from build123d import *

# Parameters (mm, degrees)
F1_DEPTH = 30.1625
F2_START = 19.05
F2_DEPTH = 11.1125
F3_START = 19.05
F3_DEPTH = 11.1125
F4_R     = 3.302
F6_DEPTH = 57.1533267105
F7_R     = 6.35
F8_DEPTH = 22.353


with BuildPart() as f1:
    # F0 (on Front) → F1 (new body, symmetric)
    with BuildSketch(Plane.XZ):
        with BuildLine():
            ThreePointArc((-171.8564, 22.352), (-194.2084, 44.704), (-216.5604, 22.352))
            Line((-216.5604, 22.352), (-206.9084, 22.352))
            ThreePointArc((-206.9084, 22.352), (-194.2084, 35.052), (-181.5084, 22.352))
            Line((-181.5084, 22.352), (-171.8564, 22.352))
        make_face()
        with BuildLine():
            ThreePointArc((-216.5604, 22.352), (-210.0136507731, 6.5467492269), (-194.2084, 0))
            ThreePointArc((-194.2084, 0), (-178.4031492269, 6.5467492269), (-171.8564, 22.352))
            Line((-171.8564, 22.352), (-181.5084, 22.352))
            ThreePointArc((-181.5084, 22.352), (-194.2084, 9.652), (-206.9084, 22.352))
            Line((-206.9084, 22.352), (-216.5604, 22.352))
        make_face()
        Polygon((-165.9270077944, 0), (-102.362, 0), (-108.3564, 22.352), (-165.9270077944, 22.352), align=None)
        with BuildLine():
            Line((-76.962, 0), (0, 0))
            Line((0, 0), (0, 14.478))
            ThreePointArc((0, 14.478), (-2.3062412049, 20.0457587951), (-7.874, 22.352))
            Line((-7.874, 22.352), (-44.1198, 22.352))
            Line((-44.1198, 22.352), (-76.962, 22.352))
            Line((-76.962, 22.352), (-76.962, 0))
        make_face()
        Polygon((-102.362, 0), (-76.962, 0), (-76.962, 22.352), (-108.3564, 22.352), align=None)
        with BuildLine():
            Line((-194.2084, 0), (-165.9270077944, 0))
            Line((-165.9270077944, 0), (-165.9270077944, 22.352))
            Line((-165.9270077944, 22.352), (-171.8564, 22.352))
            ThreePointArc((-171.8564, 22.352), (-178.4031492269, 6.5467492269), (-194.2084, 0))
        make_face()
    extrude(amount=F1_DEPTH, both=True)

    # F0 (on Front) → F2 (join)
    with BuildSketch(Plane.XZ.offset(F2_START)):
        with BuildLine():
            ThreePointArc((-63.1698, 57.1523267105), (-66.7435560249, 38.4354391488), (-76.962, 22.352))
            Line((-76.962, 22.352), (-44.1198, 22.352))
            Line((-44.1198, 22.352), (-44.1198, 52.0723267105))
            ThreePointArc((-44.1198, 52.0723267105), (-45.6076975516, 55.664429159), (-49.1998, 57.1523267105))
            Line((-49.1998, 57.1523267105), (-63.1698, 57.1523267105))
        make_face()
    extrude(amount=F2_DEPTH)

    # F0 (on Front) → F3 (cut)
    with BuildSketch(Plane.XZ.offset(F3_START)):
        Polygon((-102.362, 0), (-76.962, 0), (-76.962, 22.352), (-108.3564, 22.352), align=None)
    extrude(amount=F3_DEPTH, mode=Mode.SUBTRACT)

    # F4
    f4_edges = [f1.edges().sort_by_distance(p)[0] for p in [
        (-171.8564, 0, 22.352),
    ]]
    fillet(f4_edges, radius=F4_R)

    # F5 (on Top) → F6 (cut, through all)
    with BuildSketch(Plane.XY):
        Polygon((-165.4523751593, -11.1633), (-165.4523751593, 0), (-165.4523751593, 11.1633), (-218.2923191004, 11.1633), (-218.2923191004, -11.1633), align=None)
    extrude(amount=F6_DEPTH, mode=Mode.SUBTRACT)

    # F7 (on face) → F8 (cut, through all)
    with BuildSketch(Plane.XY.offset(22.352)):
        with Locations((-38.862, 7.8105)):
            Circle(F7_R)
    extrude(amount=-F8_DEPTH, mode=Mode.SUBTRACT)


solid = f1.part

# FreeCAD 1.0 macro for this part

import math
import FreeCAD as App
import Part
import Sketcher
from FreeCAD import Vector
Q = App.Units.Quantity


def edges_at(feature, points):
    """Names of the edges that pass closest to the given points."""
    edges = feature.Shape.Edges
    near = lambda p: min(range(len(edges)), key=lambda i: edges[i].distToShape(Part.Vertex(*p))[0])
    return sorted({f"Edge{near(p) + 1}" for p in points})


def add_polygon(sketch, points):
    """Adds a closed chain of lines whose ends are joined by coincident constraints."""
    first, n = sketch.GeometryCount, len(points)
    for a, b in zip(points, points[1:] + points[:1]):
        sketch.addGeometry(Part.LineSegment(App.Vector(*a, 0), App.Vector(*b, 0)), False)
    for i in range(n):
        sketch.addConstraint(Sketcher.Constraint("Coincident", first + i, 2, first + (i + 1) % n, 1))

doc = App.newDocument("Part")
body = doc.addObject("PartDesign::Body", "Body")

# Sketch on XZ plane
sketch1 = body.newObject("Sketcher::SketchObject", "Sketch")
sketch1.AttachmentSupport = (doc.getObject("XZ_Plane"), [""])
sketch1.MapMode = "FlatFace"
sketch1.addGeometry([
    Part.ArcOfCircle(Part.Circle(Vector(-194, 22, 0), Vector(0, 0, 1), 22), math.radians(0), math.radians(180)),  # 0
    Part.ArcOfCircle(Part.Circle(Vector(-194, 22, 0), Vector(0, 0, 1), 22), math.radians(180), math.radians(270)),  # 1
    Part.LineSegment(Vector(-194, 0, 0), Vector(0, 0, 0)),  # 2
    Part.LineSegment(Vector(0, 0, 0), Vector(0, 14, 0)),  # 3
    Part.ArcOfCircle(Part.Circle(Vector(-8, 14, 0), Vector(0, 0, 1), 8), math.radians(0), math.radians(90)),  # 4
    Part.LineSegment(Vector(-8, 22, 0), Vector(-172, 22, 0)),  # 5
    Part.Circle(Vector(-194, 22, 0), Vector(0, 0, 1), 13),  # 6
], False)
sketch1.addConstraint([
    Sketcher.Constraint("Tangent", 0, 2, 1, 1),
    Sketcher.Constraint("Tangent", 1, 2, 2, 1),
    Sketcher.Constraint("Coincident", 2, 2, 3, 1),
    Sketcher.Constraint("Tangent", 3, 2, 4, 1),
    Sketcher.Constraint("Tangent", 4, 2, 5, 1),
    Sketcher.Constraint("Coincident", 5, 2, 0, 1),
    Sketcher.Constraint("Horizontal", 2),
    Sketcher.Constraint("Vertical", 3),
    Sketcher.Constraint("Horizontal", 5),
    Sketcher.Constraint("Coincident", 2, 2, -1, 1),
    Sketcher.Constraint("Coincident", 6, 3, 0, 3),
    Sketcher.Constraint("Equal", 0, 1),
    Sketcher.Constraint("Horizontal", 6, 3, 0, 2),
    Sketcher.Constraint("Horizontal", 0, 2, 4, 2),
    Sketcher.Constraint("Diameter", 6, Q("1 in")),
    Sketcher.Constraint("Radius", 0, Q("0.88 in")),
    Sketcher.Constraint("Radius", 4, Q("0.31 in")),
    Sketcher.Constraint("DistanceX", 2, 1, 2, 2, Q("7.646 in")),
])
pad1 = body.newObject("PartDesign::Pad", "Pad")
pad1.Profile = sketch1
pad1.Length = Q("2.375 in")
pad1.Midplane = True

# Sketch on XZ plane
sketch2 = body.newObject("Sketcher::SketchObject", "Sketch001")
sketch2.AttachmentSupport = (doc.getObject("XZ_Plane"), [""])
sketch2.MapMode = "FlatFace"
sketch2.AttachmentOffset = App.Placement(Vector(0, 0, 0.75 * 25.4), App.Rotation())
sketch2.addGeometry([
    Part.ArcOfCircle(Part.Circle(Vector(-114, 57, 0), Vector(0, 0, 1), 51), math.radians(-43), math.radians(0)),  # 0
    Part.LineSegment(Vector(-77, 22, 0), Vector(-44, 22, 0)),  # 1
    Part.LineSegment(Vector(-44, 22, 0), Vector(-44, 52, 0)),  # 2
    Part.ArcOfCircle(Part.Circle(Vector(-49, 52, 0), Vector(0, 0, 1), 5), math.radians(0), math.radians(90)),  # 3
    Part.LineSegment(Vector(-49, 57, 0), Vector(-63, 57, 0)),  # 4
], False)
sketch2.addConstraint([
    Sketcher.Constraint("Coincident", 0, 1, 1, 1),
    Sketcher.Constraint("Coincident", 1, 2, 2, 1),
    Sketcher.Constraint("Tangent", 2, 2, 3, 1),
    Sketcher.Constraint("Tangent", 3, 2, 4, 1),
    Sketcher.Constraint("Coincident", 4, 2, 0, 2),
    Sketcher.Constraint("Horizontal", 1),
    Sketcher.Constraint("Vertical", 2),
    Sketcher.Constraint("Horizontal", 4),
    Sketcher.Constraint("Horizontal", 0, 3, 3, 2),
    Sketcher.Constraint("Radius", 0, Q("2 in")),
    Sketcher.Constraint("Radius", 3, Q("0.2 in")),
    Sketcher.Constraint("DistanceX", 4, 2, 4, 1, Q("0.55 in")),
    Sketcher.Constraint("DistanceX", 1, 1, 1, 2, Q("1.293 in")),
    Sketcher.Constraint("DistanceX", 0, 1, -1, 1, Q("3.03 in")),
    Sketcher.Constraint("DistanceY", -1, 1, 0, 1, Q("0.88 in")),
])
pad2 = body.newObject("PartDesign::Pad", "Pad001")
pad2.Profile = sketch2
pad2.Length = Q("0.4375 in")

# Sketch on XZ plane
sketch3 = body.newObject("Sketcher::SketchObject", "Sketch002")
sketch3.AttachmentSupport = (doc.getObject("XZ_Plane"), [""])
sketch3.MapMode = "FlatFace"
sketch3.AttachmentOffset = App.Placement(Vector(0, 0, 0.75 * 25.4), App.Rotation())
add_polygon(sketch3, [(-102, 0), (-77, 0), (-77, 22), (-108, 22)])  # lines 0-3
sketch3.addConstraint([
    Sketcher.Constraint("Horizontal", 0),
    Sketcher.Constraint("Vertical", 1),
    Sketcher.Constraint("Horizontal", 2),
    Sketcher.Constraint("PointOnObject", 0, 2, -1),
    Sketcher.Constraint("DistanceX", 0, 1, 0, 2, Q("1 in")),
    Sketcher.Constraint("DistanceY", 1, 1, 1, 2, Q("0.88 in")),
    Sketcher.Constraint("DistanceX", 2, 2, 2, 1, Q("1.236 in")),
    Sketcher.Constraint("DistanceX", 0, 2, -1, 1, Q("3.03 in")),
])
pocket1 = body.newObject("PartDesign::Pocket", "Pocket")
pocket1.Profile = sketch3
pocket1.Length = Q("0.4375 in")
pocket1.Reversed = True
doc.recompute()

fillet = body.newObject("PartDesign::Fillet", "Fillet")
fillet.Base = (pocket1, edges_at(pocket1, [(-171.856, 0, 22.352)]))
fillet.Radius = Q("0.13 in")

# Sketch on XY plane
sketch4 = body.newObject("Sketcher::SketchObject", "Sketch003")
sketch4.AttachmentSupport = (doc.getObject("XY_Plane"), [""])
sketch4.MapMode = "FlatFace"
add_polygon(sketch4, [(-165, -11), (-165, 11), (-218, 11), (-218, -11)])  # lines 0-3
sketch4.addConstraint([
    Sketcher.Constraint("Vertical", 0),
    Sketcher.Constraint("Horizontal", 1),
    Sketcher.Constraint("Vertical", 2),
    Sketcher.Constraint("Horizontal", 3),
    Sketcher.Constraint("DistanceY", 0, 1, 0, 2, Q("0.879 in")),
    Sketcher.Constraint("DistanceY", -1, 1, 0, 2, Q("0.4395 in")),
    Sketcher.Constraint("DistanceX", 1, 2, 1, 1, Q("52.839944 mm")),
    Sketcher.Constraint("DistanceX", 1, 2, -1, 1, Q("218.292319 mm")),
])
pocket2 = body.newObject("PartDesign::Pocket", "Pocket001")
pocket2.Profile = sketch4
pocket2.Type = "ThroughAll"
pocket2.Reversed = True

# Sketch on XY plane
sketch5 = body.newObject("Sketcher::SketchObject", "Sketch004")
sketch5.AttachmentSupport = (doc.getObject("XY_Plane"), [""])
sketch5.MapMode = "FlatFace"
sketch5.AttachmentOffset = App.Placement(Vector(0, 0, 0.88 * 25.4), App.Rotation())
sketch5.addGeometry(Part.Circle(Vector(-39, 8, 0), Vector(0, 0, 1), 6), False)
sketch5.addConstraint([
    Sketcher.Constraint("Diameter", 0, Q("0.5 in")),
    Sketcher.Constraint("DistanceX", 0, 3, -1, 1, Q("1.53 in")),
    Sketcher.Constraint("DistanceY", -1, 1, 0, 3, Q("0.3075 in")),
])
pocket3 = body.newObject("PartDesign::Pocket", "Pocket002")
pocket3.Profile = sketch5
pocket3.Type = "ThroughAll"

doc.recompute()
